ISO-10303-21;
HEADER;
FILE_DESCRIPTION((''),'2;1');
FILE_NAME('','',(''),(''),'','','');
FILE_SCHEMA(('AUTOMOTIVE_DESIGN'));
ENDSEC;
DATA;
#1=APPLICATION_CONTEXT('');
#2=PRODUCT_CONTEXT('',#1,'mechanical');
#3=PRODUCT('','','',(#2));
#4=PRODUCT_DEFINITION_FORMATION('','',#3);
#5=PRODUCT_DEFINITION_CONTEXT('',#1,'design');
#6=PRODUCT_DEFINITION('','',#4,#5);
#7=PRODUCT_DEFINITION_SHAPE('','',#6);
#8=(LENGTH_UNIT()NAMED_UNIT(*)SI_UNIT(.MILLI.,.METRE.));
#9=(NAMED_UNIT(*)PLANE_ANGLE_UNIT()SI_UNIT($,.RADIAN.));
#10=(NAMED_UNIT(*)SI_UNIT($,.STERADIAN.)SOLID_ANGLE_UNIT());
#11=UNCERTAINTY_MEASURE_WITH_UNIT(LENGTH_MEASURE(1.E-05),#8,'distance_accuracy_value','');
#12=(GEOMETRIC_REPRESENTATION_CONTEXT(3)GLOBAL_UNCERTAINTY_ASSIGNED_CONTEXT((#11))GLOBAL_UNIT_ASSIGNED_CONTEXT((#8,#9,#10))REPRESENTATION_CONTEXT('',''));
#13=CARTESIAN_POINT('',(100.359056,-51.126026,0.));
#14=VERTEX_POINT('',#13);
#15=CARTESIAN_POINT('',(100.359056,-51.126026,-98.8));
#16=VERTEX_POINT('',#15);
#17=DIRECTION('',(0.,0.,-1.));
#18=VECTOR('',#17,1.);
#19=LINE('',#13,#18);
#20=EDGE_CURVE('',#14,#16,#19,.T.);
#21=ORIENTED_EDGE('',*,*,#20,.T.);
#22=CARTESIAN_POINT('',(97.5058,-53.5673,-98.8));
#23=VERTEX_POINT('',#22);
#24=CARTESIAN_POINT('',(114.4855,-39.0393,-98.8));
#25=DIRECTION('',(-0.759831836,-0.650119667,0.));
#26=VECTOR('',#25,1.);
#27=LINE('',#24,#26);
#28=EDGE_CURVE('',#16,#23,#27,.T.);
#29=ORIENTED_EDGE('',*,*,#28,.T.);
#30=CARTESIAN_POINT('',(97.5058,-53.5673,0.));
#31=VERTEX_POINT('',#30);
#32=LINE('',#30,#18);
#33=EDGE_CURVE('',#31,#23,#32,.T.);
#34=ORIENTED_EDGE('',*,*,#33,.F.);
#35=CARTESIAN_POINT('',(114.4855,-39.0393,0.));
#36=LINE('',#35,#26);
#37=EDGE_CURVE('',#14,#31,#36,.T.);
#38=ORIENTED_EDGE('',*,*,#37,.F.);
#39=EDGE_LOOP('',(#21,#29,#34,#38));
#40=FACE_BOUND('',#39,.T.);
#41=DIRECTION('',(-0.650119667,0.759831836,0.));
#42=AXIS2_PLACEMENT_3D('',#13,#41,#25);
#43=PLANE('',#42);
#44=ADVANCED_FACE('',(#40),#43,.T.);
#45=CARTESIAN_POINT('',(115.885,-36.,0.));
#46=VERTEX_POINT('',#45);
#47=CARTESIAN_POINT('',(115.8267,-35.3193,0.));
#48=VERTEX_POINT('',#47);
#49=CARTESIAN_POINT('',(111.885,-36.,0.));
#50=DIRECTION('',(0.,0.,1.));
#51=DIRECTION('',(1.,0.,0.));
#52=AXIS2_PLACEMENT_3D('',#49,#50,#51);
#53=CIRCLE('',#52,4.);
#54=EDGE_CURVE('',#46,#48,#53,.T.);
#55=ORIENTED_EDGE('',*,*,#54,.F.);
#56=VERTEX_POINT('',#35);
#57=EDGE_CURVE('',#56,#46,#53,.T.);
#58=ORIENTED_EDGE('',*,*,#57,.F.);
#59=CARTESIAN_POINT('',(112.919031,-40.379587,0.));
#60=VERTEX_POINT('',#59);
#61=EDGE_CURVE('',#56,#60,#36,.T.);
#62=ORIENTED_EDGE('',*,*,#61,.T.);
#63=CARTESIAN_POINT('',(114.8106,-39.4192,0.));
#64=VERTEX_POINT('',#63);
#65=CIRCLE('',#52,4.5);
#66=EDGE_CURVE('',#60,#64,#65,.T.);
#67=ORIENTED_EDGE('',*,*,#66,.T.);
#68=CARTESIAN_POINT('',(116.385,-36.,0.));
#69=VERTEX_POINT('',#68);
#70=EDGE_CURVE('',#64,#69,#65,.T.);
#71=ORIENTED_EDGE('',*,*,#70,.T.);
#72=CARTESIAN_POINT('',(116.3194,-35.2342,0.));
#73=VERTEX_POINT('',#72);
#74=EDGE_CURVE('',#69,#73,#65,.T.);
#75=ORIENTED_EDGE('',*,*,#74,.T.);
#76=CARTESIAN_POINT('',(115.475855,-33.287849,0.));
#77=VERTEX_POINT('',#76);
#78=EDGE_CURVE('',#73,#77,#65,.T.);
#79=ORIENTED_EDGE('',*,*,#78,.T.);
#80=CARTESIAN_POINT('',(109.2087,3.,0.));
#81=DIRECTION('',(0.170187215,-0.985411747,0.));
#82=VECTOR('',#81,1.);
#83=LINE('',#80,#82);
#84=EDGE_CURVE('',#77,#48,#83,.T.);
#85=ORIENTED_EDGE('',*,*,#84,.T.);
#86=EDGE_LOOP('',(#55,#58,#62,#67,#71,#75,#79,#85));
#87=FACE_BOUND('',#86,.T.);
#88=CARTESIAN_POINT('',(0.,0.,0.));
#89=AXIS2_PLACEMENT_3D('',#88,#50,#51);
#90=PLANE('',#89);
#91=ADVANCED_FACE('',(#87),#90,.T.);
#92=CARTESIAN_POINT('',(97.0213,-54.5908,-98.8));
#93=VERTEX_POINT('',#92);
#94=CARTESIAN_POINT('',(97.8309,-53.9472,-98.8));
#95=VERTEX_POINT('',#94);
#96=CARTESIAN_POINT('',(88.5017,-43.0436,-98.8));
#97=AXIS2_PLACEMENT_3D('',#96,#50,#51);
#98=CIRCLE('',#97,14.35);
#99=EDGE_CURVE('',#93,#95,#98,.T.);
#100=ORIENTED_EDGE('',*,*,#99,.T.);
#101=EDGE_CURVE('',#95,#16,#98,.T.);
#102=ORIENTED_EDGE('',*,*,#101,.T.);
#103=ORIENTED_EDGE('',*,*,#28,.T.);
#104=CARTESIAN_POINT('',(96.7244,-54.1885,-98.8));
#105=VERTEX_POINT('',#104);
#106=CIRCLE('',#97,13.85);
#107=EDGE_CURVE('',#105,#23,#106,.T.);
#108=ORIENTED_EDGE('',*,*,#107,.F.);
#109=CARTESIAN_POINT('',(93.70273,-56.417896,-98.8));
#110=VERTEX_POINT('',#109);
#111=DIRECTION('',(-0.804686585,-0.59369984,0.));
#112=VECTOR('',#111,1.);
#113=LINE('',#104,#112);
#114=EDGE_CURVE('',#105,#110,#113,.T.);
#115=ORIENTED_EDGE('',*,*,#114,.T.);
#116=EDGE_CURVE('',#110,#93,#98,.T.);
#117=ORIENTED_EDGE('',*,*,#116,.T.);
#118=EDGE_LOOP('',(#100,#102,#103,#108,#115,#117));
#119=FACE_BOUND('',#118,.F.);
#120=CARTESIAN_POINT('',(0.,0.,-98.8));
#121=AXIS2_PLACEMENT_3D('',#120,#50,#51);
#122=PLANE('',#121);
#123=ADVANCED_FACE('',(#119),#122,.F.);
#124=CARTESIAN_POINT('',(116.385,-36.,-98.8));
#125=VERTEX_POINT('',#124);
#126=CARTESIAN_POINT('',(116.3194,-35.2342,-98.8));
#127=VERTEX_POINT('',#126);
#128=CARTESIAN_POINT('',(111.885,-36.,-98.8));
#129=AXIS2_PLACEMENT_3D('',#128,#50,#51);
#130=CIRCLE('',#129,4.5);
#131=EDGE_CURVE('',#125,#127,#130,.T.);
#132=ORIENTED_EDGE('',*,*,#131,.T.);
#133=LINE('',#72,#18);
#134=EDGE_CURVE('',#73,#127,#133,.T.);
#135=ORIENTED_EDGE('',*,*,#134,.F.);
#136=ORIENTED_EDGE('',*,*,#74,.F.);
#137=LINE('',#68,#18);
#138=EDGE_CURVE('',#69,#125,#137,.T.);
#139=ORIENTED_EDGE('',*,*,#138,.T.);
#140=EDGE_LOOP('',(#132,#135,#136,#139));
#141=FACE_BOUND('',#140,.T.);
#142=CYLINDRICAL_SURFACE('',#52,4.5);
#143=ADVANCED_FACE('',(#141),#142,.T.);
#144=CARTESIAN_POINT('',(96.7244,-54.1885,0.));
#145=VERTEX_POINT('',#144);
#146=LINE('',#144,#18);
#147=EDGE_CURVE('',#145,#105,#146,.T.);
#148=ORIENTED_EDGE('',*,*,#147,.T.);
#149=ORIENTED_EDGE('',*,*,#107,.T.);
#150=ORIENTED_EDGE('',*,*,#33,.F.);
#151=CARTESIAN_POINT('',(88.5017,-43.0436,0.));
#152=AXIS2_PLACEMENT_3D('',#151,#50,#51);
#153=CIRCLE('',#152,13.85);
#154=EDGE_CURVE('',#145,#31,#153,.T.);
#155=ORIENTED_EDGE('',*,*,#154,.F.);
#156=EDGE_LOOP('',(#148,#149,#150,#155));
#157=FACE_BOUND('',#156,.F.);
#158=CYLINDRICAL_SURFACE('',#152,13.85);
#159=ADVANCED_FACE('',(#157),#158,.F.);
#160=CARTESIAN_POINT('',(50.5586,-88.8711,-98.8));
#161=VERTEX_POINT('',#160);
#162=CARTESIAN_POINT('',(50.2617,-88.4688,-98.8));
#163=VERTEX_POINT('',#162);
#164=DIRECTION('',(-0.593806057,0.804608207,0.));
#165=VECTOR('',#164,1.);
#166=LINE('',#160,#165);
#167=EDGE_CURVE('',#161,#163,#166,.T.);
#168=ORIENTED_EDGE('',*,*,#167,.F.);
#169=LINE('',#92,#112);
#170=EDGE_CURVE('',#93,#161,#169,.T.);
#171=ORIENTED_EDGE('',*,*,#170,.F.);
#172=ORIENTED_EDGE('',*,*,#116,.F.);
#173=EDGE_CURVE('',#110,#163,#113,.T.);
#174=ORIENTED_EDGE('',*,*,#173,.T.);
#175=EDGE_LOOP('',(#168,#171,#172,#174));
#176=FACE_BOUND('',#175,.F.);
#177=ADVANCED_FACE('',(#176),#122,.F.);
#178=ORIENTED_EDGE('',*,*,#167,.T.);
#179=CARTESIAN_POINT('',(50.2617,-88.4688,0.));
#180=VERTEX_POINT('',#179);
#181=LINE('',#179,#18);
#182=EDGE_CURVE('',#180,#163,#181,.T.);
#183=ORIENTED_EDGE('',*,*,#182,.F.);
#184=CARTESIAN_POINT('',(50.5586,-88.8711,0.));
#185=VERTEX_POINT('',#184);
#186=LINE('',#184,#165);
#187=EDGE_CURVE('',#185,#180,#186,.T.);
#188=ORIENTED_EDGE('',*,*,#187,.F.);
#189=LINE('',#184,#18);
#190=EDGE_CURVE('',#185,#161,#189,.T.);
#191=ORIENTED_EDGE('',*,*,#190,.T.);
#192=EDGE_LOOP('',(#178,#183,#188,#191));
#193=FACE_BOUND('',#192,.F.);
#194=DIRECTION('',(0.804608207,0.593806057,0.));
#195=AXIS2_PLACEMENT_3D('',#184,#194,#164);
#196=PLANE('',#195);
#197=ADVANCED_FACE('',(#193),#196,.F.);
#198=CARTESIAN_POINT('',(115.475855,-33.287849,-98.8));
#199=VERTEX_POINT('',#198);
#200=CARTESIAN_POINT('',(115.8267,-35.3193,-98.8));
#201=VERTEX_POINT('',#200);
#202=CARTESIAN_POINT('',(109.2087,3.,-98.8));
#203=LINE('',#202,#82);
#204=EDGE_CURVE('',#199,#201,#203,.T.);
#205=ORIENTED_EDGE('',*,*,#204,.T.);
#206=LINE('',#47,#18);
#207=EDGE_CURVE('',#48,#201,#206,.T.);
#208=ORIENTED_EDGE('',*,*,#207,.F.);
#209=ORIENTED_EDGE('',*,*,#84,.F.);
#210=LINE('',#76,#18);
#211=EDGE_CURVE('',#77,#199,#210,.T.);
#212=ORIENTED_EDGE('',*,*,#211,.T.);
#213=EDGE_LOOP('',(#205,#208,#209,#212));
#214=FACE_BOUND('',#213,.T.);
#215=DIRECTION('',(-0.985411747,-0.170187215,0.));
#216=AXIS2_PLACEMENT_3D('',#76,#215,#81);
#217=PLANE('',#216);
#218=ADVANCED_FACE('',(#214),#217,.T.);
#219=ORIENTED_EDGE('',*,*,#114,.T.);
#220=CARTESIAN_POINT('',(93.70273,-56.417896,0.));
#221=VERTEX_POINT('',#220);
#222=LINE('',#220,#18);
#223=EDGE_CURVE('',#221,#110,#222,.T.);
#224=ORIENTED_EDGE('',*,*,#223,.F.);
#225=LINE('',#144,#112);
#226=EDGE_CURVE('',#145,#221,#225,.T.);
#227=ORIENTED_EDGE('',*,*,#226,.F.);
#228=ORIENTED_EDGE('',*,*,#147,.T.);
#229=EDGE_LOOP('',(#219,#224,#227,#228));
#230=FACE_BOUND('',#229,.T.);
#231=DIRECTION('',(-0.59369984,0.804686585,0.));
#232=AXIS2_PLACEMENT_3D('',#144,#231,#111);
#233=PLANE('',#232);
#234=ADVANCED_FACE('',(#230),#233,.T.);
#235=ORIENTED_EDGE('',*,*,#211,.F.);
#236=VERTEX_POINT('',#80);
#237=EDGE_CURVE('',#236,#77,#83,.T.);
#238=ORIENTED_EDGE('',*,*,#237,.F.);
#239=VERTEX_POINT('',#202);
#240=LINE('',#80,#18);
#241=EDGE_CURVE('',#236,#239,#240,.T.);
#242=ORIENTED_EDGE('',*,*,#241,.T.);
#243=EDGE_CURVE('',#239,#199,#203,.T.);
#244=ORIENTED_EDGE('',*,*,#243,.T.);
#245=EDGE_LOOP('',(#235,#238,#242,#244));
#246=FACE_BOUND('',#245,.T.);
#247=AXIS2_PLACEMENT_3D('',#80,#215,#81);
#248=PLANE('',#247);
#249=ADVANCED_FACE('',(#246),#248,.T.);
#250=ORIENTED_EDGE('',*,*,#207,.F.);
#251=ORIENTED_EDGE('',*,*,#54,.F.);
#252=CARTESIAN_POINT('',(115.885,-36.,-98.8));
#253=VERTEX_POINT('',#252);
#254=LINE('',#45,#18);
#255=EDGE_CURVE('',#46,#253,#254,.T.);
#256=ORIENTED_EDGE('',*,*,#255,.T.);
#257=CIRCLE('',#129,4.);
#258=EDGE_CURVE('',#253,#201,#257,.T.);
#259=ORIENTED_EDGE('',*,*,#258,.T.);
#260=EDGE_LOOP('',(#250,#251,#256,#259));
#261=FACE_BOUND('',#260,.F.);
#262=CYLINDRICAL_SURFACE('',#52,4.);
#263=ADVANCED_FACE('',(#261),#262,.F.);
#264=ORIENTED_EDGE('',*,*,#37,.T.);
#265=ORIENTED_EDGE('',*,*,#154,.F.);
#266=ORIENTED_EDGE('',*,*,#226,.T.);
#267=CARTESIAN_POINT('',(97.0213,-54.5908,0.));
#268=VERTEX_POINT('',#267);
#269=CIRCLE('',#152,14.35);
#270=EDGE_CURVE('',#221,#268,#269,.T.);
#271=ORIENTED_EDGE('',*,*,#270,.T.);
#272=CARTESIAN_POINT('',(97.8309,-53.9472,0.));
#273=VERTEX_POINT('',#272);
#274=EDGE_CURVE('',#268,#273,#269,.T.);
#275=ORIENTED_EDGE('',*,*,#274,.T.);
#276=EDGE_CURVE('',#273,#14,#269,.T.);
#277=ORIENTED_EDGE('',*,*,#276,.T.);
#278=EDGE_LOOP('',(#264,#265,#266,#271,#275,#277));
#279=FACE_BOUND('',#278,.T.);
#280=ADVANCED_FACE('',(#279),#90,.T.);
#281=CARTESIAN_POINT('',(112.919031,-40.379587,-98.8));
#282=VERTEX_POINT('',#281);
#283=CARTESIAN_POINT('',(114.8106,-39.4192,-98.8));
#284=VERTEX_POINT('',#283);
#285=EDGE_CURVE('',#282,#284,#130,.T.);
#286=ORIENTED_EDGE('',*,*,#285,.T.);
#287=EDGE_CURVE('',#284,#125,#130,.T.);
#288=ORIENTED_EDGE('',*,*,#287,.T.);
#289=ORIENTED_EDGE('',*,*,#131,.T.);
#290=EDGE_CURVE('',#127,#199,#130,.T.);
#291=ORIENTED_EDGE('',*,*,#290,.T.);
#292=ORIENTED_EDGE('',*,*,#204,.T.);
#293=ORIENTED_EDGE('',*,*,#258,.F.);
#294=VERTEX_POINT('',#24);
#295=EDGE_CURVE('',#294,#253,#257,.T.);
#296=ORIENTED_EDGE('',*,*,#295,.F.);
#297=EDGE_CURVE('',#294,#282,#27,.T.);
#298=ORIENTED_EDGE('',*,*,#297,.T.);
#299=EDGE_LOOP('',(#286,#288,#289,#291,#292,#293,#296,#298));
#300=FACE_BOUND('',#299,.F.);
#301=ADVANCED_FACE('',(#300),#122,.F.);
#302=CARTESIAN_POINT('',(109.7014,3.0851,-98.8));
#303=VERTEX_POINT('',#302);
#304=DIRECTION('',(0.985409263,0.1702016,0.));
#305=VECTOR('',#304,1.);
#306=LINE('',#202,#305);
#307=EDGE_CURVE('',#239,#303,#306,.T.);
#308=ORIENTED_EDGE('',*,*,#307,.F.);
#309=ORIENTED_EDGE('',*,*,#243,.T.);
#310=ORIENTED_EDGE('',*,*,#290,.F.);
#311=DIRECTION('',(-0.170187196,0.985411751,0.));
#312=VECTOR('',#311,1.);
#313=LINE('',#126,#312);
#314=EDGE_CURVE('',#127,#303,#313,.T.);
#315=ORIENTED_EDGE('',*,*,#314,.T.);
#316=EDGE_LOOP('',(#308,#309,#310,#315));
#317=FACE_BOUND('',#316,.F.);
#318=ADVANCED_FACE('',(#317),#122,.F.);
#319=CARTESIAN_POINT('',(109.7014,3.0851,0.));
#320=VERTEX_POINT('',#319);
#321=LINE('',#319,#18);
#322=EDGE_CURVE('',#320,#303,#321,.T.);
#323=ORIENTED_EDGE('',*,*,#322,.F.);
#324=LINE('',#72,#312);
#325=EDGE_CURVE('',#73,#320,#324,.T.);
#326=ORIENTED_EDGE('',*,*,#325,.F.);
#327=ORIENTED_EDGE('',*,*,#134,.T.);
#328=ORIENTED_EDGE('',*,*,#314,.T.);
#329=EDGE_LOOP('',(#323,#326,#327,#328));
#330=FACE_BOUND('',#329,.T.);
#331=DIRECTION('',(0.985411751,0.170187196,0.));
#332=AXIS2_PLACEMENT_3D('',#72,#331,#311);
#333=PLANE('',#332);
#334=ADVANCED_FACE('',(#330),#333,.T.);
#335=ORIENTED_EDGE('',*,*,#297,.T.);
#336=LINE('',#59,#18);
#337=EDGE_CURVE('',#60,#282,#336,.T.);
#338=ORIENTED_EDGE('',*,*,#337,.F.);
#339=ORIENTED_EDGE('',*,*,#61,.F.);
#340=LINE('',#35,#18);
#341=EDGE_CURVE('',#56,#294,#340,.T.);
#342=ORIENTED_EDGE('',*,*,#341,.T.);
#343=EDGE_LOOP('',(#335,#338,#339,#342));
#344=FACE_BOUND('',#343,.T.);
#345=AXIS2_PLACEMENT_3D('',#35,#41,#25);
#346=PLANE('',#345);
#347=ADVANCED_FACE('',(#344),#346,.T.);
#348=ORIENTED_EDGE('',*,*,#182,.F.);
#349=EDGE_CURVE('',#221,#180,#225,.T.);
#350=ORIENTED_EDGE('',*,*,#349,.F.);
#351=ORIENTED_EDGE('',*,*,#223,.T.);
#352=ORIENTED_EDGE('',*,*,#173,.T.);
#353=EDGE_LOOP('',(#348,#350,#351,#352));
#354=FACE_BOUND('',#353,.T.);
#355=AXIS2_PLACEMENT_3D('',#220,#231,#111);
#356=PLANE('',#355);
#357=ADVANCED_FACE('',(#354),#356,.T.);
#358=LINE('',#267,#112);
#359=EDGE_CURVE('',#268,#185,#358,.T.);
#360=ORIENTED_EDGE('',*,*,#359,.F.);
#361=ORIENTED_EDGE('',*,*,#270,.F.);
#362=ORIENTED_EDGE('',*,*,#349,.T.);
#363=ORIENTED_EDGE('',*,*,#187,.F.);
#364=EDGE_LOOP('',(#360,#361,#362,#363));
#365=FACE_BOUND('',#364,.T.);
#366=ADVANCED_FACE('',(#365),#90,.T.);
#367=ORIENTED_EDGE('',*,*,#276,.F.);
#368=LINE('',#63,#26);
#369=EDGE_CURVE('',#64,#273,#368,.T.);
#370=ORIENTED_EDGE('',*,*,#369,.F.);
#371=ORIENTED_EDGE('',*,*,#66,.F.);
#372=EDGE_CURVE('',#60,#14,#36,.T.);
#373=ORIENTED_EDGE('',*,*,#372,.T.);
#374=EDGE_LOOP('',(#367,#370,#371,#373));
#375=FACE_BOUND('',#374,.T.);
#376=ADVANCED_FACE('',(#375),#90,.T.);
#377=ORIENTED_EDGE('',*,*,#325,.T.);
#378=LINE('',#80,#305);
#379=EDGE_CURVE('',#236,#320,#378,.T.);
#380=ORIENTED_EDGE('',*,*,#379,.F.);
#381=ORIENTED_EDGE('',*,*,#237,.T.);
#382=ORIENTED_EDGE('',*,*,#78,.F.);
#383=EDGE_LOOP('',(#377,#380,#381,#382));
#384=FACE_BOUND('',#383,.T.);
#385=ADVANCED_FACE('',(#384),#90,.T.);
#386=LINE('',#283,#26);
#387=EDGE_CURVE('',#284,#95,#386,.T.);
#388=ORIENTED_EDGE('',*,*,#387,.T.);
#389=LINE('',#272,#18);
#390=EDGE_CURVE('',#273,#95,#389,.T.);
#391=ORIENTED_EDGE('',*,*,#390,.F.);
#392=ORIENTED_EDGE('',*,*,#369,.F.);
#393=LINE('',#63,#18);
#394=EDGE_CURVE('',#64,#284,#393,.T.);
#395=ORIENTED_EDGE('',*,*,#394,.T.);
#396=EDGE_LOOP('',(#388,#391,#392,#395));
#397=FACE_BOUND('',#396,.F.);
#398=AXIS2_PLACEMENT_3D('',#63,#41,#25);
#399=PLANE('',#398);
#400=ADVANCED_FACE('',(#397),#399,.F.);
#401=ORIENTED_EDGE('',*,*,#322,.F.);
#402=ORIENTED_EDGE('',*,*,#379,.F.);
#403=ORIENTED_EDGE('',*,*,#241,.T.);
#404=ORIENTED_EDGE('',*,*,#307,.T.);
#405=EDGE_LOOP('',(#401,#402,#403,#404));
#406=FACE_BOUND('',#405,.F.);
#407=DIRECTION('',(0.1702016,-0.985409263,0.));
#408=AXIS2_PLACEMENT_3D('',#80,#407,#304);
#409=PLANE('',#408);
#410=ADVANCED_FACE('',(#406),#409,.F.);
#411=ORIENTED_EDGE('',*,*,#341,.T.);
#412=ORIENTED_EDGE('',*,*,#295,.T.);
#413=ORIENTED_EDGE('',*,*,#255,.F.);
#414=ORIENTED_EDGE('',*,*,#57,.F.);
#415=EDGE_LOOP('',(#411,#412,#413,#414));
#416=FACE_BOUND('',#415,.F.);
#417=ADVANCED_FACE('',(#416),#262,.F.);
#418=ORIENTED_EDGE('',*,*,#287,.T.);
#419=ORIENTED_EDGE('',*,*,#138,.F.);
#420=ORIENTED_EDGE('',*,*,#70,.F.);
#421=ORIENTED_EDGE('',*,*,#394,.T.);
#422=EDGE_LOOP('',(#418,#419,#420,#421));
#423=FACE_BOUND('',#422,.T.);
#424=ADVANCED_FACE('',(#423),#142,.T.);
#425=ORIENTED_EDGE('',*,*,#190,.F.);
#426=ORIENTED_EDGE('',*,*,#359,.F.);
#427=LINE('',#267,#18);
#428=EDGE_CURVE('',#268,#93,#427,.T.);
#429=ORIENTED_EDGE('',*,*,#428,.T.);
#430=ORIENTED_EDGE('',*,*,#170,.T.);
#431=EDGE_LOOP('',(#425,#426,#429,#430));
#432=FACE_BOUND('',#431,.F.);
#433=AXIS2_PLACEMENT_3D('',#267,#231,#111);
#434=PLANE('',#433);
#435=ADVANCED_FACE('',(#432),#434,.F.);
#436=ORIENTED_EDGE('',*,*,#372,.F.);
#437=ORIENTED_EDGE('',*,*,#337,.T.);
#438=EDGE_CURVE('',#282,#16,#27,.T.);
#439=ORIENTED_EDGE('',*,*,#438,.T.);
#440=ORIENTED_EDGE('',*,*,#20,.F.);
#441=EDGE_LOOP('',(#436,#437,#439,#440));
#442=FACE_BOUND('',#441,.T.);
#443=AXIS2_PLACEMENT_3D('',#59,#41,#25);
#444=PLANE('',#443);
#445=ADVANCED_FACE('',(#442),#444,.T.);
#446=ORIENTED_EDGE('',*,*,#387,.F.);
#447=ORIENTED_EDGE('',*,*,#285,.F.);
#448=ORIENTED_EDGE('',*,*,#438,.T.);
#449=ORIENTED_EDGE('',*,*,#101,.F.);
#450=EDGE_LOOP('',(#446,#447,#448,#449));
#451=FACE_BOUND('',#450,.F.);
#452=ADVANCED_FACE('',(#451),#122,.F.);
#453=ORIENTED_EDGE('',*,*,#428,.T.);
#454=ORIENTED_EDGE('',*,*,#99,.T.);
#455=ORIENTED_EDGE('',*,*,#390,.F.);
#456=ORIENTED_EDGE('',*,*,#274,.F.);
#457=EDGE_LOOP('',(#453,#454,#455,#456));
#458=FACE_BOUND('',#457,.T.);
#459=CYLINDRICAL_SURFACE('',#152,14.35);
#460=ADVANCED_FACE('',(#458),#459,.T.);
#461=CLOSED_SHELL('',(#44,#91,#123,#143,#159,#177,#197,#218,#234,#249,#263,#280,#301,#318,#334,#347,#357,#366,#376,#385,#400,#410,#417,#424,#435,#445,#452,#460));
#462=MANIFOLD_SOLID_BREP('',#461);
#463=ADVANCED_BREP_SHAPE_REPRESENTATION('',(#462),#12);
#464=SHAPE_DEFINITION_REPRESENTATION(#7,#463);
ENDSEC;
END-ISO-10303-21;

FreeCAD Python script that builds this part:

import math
import FreeCAD as App
import Part
import Sketcher

V = App.Vector
Q = App.Units.Quantity

doc = App.newDocument("Part")
body = doc.addObject("PartDesign::Body", "Body")

# Sketch on XY plane
sketch1 = body.newObject("Sketcher::SketchObject", "Sketch")
sketch1.AttachmentSupport = (doc.getObject("XY_Plane"), [""])
sketch1.MapMode = "FlatFace"
sketch1.addGeometry([
    Part.ArcOfCircle(Part.Circle(V(111.89, -36, 0), V(0, 0, 1), 4), math.radians(-49), math.radians(10)),  # 0
    Part.LineSegment(V(114.49, -39.04, 0), V(97.51, -53.57, 0)),  # 1
    Part.ArcOfCircle(Part.Circle(V(88.5, -43.04, 0), V(0, 0, 1), 13.85), math.radians(-53.58), math.radians(-49.45)),  # 2
    Part.LineSegment(V(96.72, -54.19, 0), V(50.26, -88.47, 0)),  # 3
    Part.LineSegment(V(50.26, -88.47, 0), V(50.56, -88.87, 0)),  # 4
    Part.LineSegment(V(50.56, -88.87, 0), V(97.02, -54.59, 0)),  # 5
    Part.ArcOfCircle(Part.Circle(V(88.5, -43.04, 0), V(0, 0, 1), 14.35), math.radians(-53.58), math.radians(-49.45)),  # 6
    Part.LineSegment(V(97.83, -53.95, 0), V(114.81, -39.42, 0)),  # 7
    Part.ArcOfCircle(Part.Circle(V(111.89, -36, 0), V(0, 0, 1), 4.5), math.radians(-49), math.radians(10)),  # 8
    Part.LineSegment(V(116.32, -35.23, 0), V(109.7, 3.09, 0)),  # 9
    Part.LineSegment(V(109.7, 3.09, 0), V(109.21, 3, 0)),  # 10
    Part.LineSegment(V(109.21, 3, 0), V(115.83, -35.32, 0)),  # 11
], False)
sketch1.addConstraint([
    Sketcher.Constraint("Tangent", 0, 1, 1, 1),
    Sketcher.Constraint("Tangent", 1, 2, 2, 2),
    Sketcher.Constraint("Tangent", 2, 1, 3, 1),
    Sketcher.Constraint("Coincident", 3, 2, 4, 1),
    Sketcher.Constraint("Coincident", 4, 2, 5, 1),
    Sketcher.Constraint("Tangent", 5, 2, 6, 1),
    Sketcher.Constraint("Tangent", 6, 2, 7, 1),
    Sketcher.Constraint("Tangent", 7, 2, 8, 1),
    Sketcher.Constraint("Tangent", 8, 2, 9, 1),
    Sketcher.Constraint("Coincident", 9, 2, 10, 1),
    Sketcher.Constraint("Coincident", 10, 2, 11, 1),
    Sketcher.Constraint("Tangent", 11, 2, 0, 2),
    Sketcher.Constraint("Coincident", 6, 3, 2, 3),
    Sketcher.Constraint("Coincident", 8, 3, 0, 3),
    Sketcher.Constraint("Perpendicular", 3, 4),
    Sketcher.Constraint("Perpendicular", 4, 5),
    Sketcher.Constraint("Parallel", 1, 7),
    Sketcher.Constraint("Perpendicular", 9, 10),
    Sketcher.Constraint("Perpendicular", 10, 11),
    Sketcher.Constraint("Radius", 0, 4.0),
    Sketcher.Constraint("Distance", 4, 0.5),
    Sketcher.Constraint("Radius", 2, 13.85),
    Sketcher.Constraint("DistanceY", 0, 3, -1, 1, 36.0),
    Sketcher.Constraint("DistanceY", -1, 1, 10, 2, 3.0),
    Sketcher.Constraint("Angle", 10, Q("-170.2005 deg")),
    Sketcher.Constraint("Angle", 1, Q("-139.4494 deg")),
    Sketcher.Constraint("Angle", 3, Q("-143.58 deg")),
    Sketcher.Constraint("DistanceX", 3, 2, 2, 3, 38.24),
    Sketcher.Constraint("DistanceX", -1, 1, 0, 3, 111.885),
    Sketcher.Constraint("DistanceY", 4, 2, -1, 1, 88.871),
])
pad1 = body.newObject("PartDesign::Pad", "Pad")
pad1.Profile = sketch1
pad1.Length = 98.8
pad1.Reversed = True

doc.recompute()
